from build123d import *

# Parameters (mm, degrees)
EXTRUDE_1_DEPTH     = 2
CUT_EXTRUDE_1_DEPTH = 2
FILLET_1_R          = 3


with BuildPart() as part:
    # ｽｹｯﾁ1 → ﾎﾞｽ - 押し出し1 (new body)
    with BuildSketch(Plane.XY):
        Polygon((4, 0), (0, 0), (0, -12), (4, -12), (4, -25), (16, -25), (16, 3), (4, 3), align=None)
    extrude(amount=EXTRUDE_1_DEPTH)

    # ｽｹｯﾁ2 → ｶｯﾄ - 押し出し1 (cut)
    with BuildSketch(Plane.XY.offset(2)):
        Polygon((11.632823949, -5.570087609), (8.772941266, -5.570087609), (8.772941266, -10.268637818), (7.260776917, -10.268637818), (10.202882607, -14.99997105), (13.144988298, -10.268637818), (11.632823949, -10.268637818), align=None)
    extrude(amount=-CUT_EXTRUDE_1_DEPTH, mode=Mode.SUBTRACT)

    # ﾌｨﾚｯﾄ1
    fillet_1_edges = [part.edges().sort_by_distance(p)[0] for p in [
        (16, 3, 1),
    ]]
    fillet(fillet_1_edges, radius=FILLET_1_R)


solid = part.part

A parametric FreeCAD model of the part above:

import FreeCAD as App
import Part
import Sketcher


def edges_at(feature, points):
    """Names of the edges that pass closest to the given points."""
    edges = feature.Shape.Edges
    near = lambda p: min(range(len(edges)), key=lambda i: edges[i].distToShape(Part.Vertex(*p))[0])
    return sorted({f"Edge{near(p) + 1}" for p in points})

doc = App.newDocument("Part")
body = doc.addObject("PartDesign::Body", "Body")

# Sketch on XY plane
sketch1 = doc.addObject("Sketcher::SketchObject", "Sketch")
body.addObject(sketch1)
sketch1.AttachmentSupport = (doc.XY_Plane, [""])
sketch1.MapMode = "FlatFace"
sketch1.addGeometry(Part.LineSegment(App.Vector(4, 0, 0), App.Vector(0, 0, 0)), False)
sketch1.addGeometry(Part.LineSegment(App.Vector(0, 0, 0), App.Vector(0, -12, 0)), False)
sketch1.addGeometry(Part.LineSegment(App.Vector(0, -12, 0), App.Vector(4, -12, 0)), False)
sketch1.addGeometry(Part.LineSegment(App.Vector(4, -12, 0), App.Vector(4, -25, 0)), False)
sketch1.addGeometry(Part.LineSegment(App.Vector(4, -25, 0), App.Vector(16, -25, 0)), False)
sketch1.addGeometry(Part.LineSegment(App.Vector(16, -25, 0), App.Vector(16, 3, 0)), False)
sketch1.addGeometry(Part.LineSegment(App.Vector(16, 3, 0), App.Vector(4, 3, 0)), False)
sketch1.addGeometry(Part.LineSegment(App.Vector(4, 3, 0), App.Vector(4, 0, 0)), False)
sketch1.addConstraint(Sketcher.Constraint("Coincident", 0, 2, 1, 1))
sketch1.addConstraint(Sketcher.Constraint("Coincident", 1, 2, 2, 1))
sketch1.addConstraint(Sketcher.Constraint("Coincident", 2, 2, 3, 1))
sketch1.addConstraint(Sketcher.Constraint("Coincident", 3, 2, 4, 1))
sketch1.addConstraint(Sketcher.Constraint("Coincident", 4, 2, 5, 1))
sketch1.addConstraint(Sketcher.Constraint("Coincident", 5, 2, 6, 1))
sketch1.addConstraint(Sketcher.Constraint("Coincident", 6, 2, 7, 1))
sketch1.addConstraint(Sketcher.Constraint("Coincident", 7, 2, 0, 1))
sketch1.addConstraint(Sketcher.Constraint("Horizontal", 0))
sketch1.addConstraint(Sketcher.Constraint("Vertical", 1))
sketch1.addConstraint(Sketcher.Constraint("Horizontal", 2))
sketch1.addConstraint(Sketcher.Constraint("Vertical", 3))
sketch1.addConstraint(Sketcher.Constraint("Horizontal", 4))
sketch1.addConstraint(Sketcher.Constraint("Vertical", 5))
sketch1.addConstraint(Sketcher.Constraint("Horizontal", 6))
sketch1.addConstraint(Sketcher.Constraint("Vertical", 7))
sketch1.addConstraint(Sketcher.Constraint("Coincident", 0, 2, -1, 1))
sketch1.addConstraint(Sketcher.Constraint("Vertical", 3, 2, 6, 2))
sketch1.addConstraint(Sketcher.Constraint("Equal", 6, 1))
sketch1.addConstraint(Sketcher.Constraint("DistanceX", 0, 2, 0, 1, 4.0))
sketch1.addConstraint(Sketcher.Constraint("DistanceX", 4, 1, 4, 2, 12.0))
sketch1.addConstraint(Sketcher.Constraint("DistanceY", 3, 2, 3, 1, 13.0))
sketch1.addConstraint(Sketcher.Constraint("DistanceY", 5, 1, 5, 2, 28.0))
pad1 = doc.addObject("PartDesign::Pad", "Pad")
body.addObject(pad1)
pad1.Profile = sketch1
pad1.Length = 2

# Sketch on XY plane
sketch2 = doc.addObject("Sketcher::SketchObject", "Sketch001")
body.addObject(sketch2)
sketch2.AttachmentSupport = (doc.XY_Plane, [""])
sketch2.MapMode = "FlatFace"
sketch2.AttachmentOffset = App.Placement(App.Vector(0, 0, 2), App.Rotation())
sketch2.addGeometry(Part.LineSegment(App.Vector(11.6, -5.6, 0), App.Vector(8.8, -5.6, 0)), False)
sketch2.addGeometry(Part.LineSegment(App.Vector(8.8, -5.6, 0), App.Vector(8.8, -10.3, 0)), False)
sketch2.addGeometry(Part.LineSegment(App.Vector(8.8, -10.3, 0), App.Vector(7.3, -10.3, 0)), False)
sketch2.addGeometry(Part.LineSegment(App.Vector(7.3, -10.3, 0), App.Vector(10.2, -15, 0)), False)
sketch2.addGeometry(Part.LineSegment(App.Vector(10.2, -15, 0), App.Vector(13.1, -10.3, 0)), False)
sketch2.addGeometry(Part.LineSegment(App.Vector(13.1, -10.3, 0), App.Vector(11.6, -10.3, 0)), False)
sketch2.addGeometry(Part.LineSegment(App.Vector(11.6, -10.3, 0), App.Vector(11.6, -5.6, 0)), False)
sketch2.addConstraint(Sketcher.Constraint("Coincident", 0, 2, 1, 1))
sketch2.addConstraint(Sketcher.Constraint("Coincident", 1, 2, 2, 1))
sketch2.addConstraint(Sketcher.Constraint("Coincident", 2, 2, 3, 1))
sketch2.addConstraint(Sketcher.Constraint("Coincident", 3, 2, 4, 1))
sketch2.addConstraint(Sketcher.Constraint("Coincident", 4, 2, 5, 1))
sketch2.addConstraint(Sketcher.Constraint("Coincident", 5, 2, 6, 1))
sketch2.addConstraint(Sketcher.Constraint("Coincident", 6, 2, 0, 1))
sketch2.addConstraint(Sketcher.Constraint("Horizontal", 0))
sketch2.addConstraint(Sketcher.Constraint("Vertical", 1))
sketch2.addConstraint(Sketcher.Constraint("Horizontal", 2))
sketch2.addConstraint(Sketcher.Constraint("Horizontal", 5))
sketch2.addConstraint(Sketcher.Constraint("Vertical", 6))
sketch2.addConstraint(Sketcher.Constraint("Horizontal", 2, 2, 4, 2))
sketch2.addConstraint(Sketcher.Constraint("Equal", 2, 5))
sketch2.addConstraint(Sketcher.Constraint("Equal", 3, 4))
sketch2.addConstraint(Sketcher.Constraint("DistanceY", 1, 2, 1, 1, 4.69855))
sketch2.addConstraint(Sketcher.Constraint("Distance", 3, 5.57149))
sketch2.addConstraint(Sketcher.Constraint("DistanceX", 0, 2, 0, 1, 2.859883))
sketch2.addConstraint(Sketcher.Constraint("DistanceX", 2, 2, 2, 1, 1.512164))
sketch2.addConstraint(Sketcher.Constraint("DistanceX", -1, 1, 0, 2, 8.772941))
sketch2.addConstraint(Sketcher.Constraint("DistanceY", 3, 2, -1, 1, 14.999971))
pocket1 = doc.addObject("PartDesign::Pocket", "Pocket")
body.addObject(pocket1)
pocket1.Profile = sketch2
pocket1.Length = 2
doc.recompute()

fillet = doc.addObject("PartDesign::Fillet", "Fillet")
body.addObject(fillet)
fillet.Base = (pocket1, edges_at(pocket1, [(16, 3, 1)]))
fillet.Radius = 3

doc.recompute()
